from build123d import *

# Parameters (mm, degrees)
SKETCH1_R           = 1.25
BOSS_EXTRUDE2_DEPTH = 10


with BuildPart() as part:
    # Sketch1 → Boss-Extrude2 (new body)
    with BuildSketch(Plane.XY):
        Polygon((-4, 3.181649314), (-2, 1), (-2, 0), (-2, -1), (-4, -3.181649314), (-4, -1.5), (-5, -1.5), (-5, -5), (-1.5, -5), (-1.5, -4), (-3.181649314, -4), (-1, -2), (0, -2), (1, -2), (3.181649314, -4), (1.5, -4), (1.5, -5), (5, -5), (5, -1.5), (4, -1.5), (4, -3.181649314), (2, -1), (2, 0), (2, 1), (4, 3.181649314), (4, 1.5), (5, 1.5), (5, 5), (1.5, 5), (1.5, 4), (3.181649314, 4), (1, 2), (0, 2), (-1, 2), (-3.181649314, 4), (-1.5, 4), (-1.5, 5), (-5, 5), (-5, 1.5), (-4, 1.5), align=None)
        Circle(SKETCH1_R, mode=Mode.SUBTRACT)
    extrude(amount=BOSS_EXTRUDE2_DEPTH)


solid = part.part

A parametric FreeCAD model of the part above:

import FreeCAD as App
import Part
import Sketcher

V = App.Vector


def add_polygon(sketch, points):
    """Adds a closed chain of lines whose ends are joined by coincident constraints."""
    first, n = sketch.GeometryCount, len(points)
    for a, b in zip(points, points[1:] + points[:1]):
        sketch.addGeometry(Part.LineSegment(App.Vector(*a, 0), App.Vector(*b, 0)), False)
    for i in range(n):
        sketch.addConstraint(Sketcher.Constraint("Coincident", first + i, 2, first + (i + 1) % n, 1))

doc = App.newDocument("Part")
body = doc.addObject("PartDesign::Body", "Body")

sketch1 = body.newObject("Sketcher::SketchObject", "Sketch")
sketch1.AttachmentSupport = (doc.getObject("XY_Plane"), [""])
sketch1.MapMode = "FlatFace"
add_polygon(sketch1, [(-4, 3.2), (-2, 1), (-2, -1), (-4, -3.2), (-4, -1.5), (-5, -1.5), (-5, -5), (-1.5, -5), (-1.5, -4), (-3.2, -4), (-1, -2), (1, -2), (3.2, -4), (1.5, -4), (1.5, -5), (5, -5), (5, -1.5), (4, -1.5), (4, -3.2), (2, -1), (2, 1), (4, 3.2), (4, 1.5), (5, 1.5), (5, 5), (1.5, 5), (1.5, 4), (3.2, 4), (1, 2), (-1, 2), (-3.2, 4), (-1.5, 4), (-1.5, 5), (-5, 5), (-5, 1.5), (-4, 1.5)])
sketch1.addGeometry(Part.Circle(V(0, 0, 0), V(0, 0, 1), 1.2), False)
sketch1.addConstraint(Sketcher.Constraint("Vertical", 1))
sketch1.addConstraint(Sketcher.Constraint("Vertical", 3))
sketch1.addConstraint(Sketcher.Constraint("Horizontal", 4))
sketch1.addConstraint(Sketcher.Constraint("Vertical", 5))
sketch1.addConstraint(Sketcher.Constraint("Horizontal", 6))
sketch1.addConstraint(Sketcher.Constraint("Vertical", 7))
sketch1.addConstraint(Sketcher.Constraint("Horizontal", 8))
sketch1.addConstraint(Sketcher.Constraint("Horizontal", 10))
sketch1.addConstraint(Sketcher.Constraint("Horizontal", 12))
sketch1.addConstraint(Sketcher.Constraint("Vertical", 13))
sketch1.addConstraint(Sketcher.Constraint("Horizontal", 14))
sketch1.addConstraint(Sketcher.Constraint("Vertical", 15))
sketch1.addConstraint(Sketcher.Constraint("Horizontal", 16))
sketch1.addConstraint(Sketcher.Constraint("Vertical", 17))
sketch1.addConstraint(Sketcher.Constraint("Vertical", 19))
sketch1.addConstraint(Sketcher.Constraint("Vertical", 21))
sketch1.addConstraint(Sketcher.Constraint("Horizontal", 22))
sketch1.addConstraint(Sketcher.Constraint("Vertical", 23))
sketch1.addConstraint(Sketcher.Constraint("Horizontal", 24))
sketch1.addConstraint(Sketcher.Constraint("Vertical", 25))
sketch1.addConstraint(Sketcher.Constraint("Horizontal", 26))
sketch1.addConstraint(Sketcher.Constraint("Horizontal", 28))
sketch1.addConstraint(Sketcher.Constraint("Horizontal", 30))
sketch1.addConstraint(Sketcher.Constraint("Vertical", 31))
sketch1.addConstraint(Sketcher.Constraint("Horizontal", 32))
sketch1.addConstraint(Sketcher.Constraint("Vertical", 33))
sketch1.addConstraint(Sketcher.Constraint("Horizontal", 34))
sketch1.addConstraint(Sketcher.Constraint("Vertical", 35))
sketch1.addConstraint(Sketcher.Constraint("Coincident", 36, 3, -1, 1))
sketch1.addConstraint(Sketcher.Constraint("Symmetric", 0, 2, 18, 2, -1, 1))
sketch1.addConstraint(Sketcher.Constraint("Symmetric", 2, 2, 20, 2, -1, 1))
sketch1.addConstraint(Sketcher.Constraint("Symmetric", 4, 2, 22, 2, -1, 1))
sketch1.addConstraint(Sketcher.Constraint("Symmetric", 6, 2, 24, 2, -1, 1))
sketch1.addConstraint(Sketcher.Constraint("Symmetric", 8, 2, 26, 2, -1, 1))
sketch1.addConstraint(Sketcher.Constraint("Symmetric", 9, 2, 27, 2, -1, 1))
sketch1.addConstraint(Sketcher.Constraint("Symmetric", 11, 2, 29, 2, -1, 1))
sketch1.addConstraint(Sketcher.Constraint("Symmetric", 13, 2, 31, 2, -1, 1))
sketch1.addConstraint(Sketcher.Constraint("Symmetric", 15, 2, 33, 2, -1, 1))
sketch1.addConstraint(Sketcher.Constraint("Symmetric", 17, 2, 35, 2, -1, 1))
sketch1.addConstraint(Sketcher.Constraint("Symmetric", 8, 2, 11, 2, -2))
sketch1.addConstraint(Sketcher.Constraint("Symmetric", 6, 2, 13, 2, -2))
sketch1.addConstraint(Sketcher.Constraint("Symmetric", 4, 2, 15, 2, -2))
sketch1.addConstraint(Sketcher.Constraint("Symmetric", 2, 2, 17, 2, -2))
sketch1.addConstraint(Sketcher.Constraint("Perpendicular", 0, 9))
sketch1.addConstraint(Sketcher.Constraint("Perpendicular", 2, 11))
sketch1.addConstraint(Sketcher.Constraint("Perpendicular", 11, 20))
sketch1.addConstraint(Sketcher.Constraint("Perpendicular", 20, 29))
sketch1.addConstraint(Sketcher.Constraint("Horizontal", 1, 2, 18, 2))
sketch1.addConstraint(Sketcher.Constraint("Equal", 28, 1))
sketch1.addConstraint(Sketcher.Constraint("Equal", 30, 3))
sketch1.addConstraint(Sketcher.Constraint("Equal", 32, 5))
sketch1.addConstraint(Sketcher.Constraint("Equal", 34, 7))
sketch1.addConstraint(Sketcher.Constraint("Equal", 2, 9))
sketch1.addConstraint(Sketcher.Constraint("Diameter", 36, 2.5))
sketch1.addConstraint(Sketcher.Constraint("DistanceX", 4, 2, 4, 1, 1.0))
sketch1.addConstraint(Sketcher.Constraint("DistanceX", 10, 1, 10, 2, 2.0))
sketch1.addConstraint(Sketcher.Constraint("DistanceX", 6, 1, 6, 2, 3.5))
sketch1.addConstraint(Sketcher.Constraint("DistanceX", 0, 2, -1, 1, 2.0))
sketch1.addConstraint(Sketcher.Constraint("DistanceX", 2, 2, -1, 1, 4.0))
sketch1.addConstraint(Sketcher.Constraint("DistanceX", 8, 2, 8, 1, 1.681649))
pad1 = body.newObject("PartDesign::Pad", "Pad")
pad1.Profile = sketch1
pad1.Length = 10

doc.recompute()
